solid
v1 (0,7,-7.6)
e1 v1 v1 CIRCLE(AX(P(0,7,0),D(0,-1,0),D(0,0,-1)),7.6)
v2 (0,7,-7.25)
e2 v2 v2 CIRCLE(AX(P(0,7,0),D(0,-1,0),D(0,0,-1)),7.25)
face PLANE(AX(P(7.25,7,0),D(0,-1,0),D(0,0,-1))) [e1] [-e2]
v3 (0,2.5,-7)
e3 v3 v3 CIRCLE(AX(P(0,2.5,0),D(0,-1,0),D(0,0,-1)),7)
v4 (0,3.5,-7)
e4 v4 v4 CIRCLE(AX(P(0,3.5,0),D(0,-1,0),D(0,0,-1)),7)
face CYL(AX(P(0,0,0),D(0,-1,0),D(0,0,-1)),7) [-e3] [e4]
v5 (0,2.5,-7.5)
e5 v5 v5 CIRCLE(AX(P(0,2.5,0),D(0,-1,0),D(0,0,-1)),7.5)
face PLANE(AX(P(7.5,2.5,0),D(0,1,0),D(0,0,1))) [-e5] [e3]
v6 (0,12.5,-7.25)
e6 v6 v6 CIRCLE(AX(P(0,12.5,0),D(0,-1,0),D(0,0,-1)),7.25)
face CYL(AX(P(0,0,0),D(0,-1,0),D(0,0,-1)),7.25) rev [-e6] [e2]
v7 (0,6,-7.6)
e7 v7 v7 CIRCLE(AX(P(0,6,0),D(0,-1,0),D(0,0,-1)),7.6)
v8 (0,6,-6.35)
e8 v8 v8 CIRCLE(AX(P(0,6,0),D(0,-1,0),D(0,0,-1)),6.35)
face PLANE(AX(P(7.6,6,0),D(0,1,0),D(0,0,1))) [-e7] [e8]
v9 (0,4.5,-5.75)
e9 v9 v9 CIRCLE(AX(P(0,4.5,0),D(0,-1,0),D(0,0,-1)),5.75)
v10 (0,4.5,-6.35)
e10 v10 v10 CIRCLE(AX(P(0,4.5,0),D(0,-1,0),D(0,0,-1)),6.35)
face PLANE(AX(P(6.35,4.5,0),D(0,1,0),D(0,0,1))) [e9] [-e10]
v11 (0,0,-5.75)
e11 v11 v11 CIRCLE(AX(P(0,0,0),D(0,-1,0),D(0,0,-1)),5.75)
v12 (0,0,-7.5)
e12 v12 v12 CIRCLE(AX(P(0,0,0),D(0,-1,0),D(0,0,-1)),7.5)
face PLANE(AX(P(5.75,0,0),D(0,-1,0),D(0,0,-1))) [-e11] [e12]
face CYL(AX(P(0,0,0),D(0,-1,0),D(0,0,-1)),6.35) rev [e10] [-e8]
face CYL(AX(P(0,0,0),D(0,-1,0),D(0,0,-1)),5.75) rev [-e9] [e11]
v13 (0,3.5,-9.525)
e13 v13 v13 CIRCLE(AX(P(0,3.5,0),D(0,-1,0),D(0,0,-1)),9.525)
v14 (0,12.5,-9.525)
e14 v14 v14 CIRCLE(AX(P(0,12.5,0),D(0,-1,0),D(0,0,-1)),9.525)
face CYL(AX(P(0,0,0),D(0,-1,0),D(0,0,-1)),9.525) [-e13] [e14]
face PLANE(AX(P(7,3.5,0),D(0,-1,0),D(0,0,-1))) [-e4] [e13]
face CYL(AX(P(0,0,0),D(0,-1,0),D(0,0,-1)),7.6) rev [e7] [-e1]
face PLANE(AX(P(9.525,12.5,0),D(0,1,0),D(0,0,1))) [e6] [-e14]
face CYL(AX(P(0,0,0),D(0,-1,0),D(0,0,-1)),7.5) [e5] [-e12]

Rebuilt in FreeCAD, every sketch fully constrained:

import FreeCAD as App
import Part
import Sketcher

V = App.Vector
Q = App.Units.Quantity

doc = App.newDocument("Part")
body = doc.addObject("PartDesign::Body", "Body")

sketch1 = body.newObject("Sketcher::SketchObject", "Sketch")
sketch1.AttachmentSupport = (doc.getObject("XY_Plane"), [""])
sketch1.MapMode = "FlatFace"
sketch1.addGeometry([
    Part.LineSegment(V(5.75, 0, 0), V(7.5, 0, 0)),
    Part.LineSegment(V(7.5, 0, 0), V(7.5, 2.5, 0)),
    Part.LineSegment(V(7.5, 2.5, 0), V(7, 2.5, 0)),
    Part.LineSegment(V(7, 2.5, 0), V(7, 3.5, 0)),
    Part.LineSegment(V(7, 3.5, 0), V(9.53, 3.5, 0)),
    Part.LineSegment(V(9.53, 3.5, 0), V(9.53, 12.5, 0)),
    Part.LineSegment(V(9.53, 12.5, 0), V(7.25, 12.5, 0)),
    Part.LineSegment(V(7.25, 12.5, 0), V(7.25, 7, 0)),
    Part.LineSegment(V(7.25, 7, 0), V(7.6, 7, 0)),
    Part.LineSegment(V(7.6, 7, 0), V(7.6, 6, 0)),
    Part.LineSegment(V(7.6, 6, 0), V(6.35, 6, 0)),
    Part.LineSegment(V(6.35, 6, 0), V(6.35, 4.5, 0)),
    Part.LineSegment(V(6.35, 4.5, 0), V(5.75, 4.5, 0)),
    Part.LineSegment(V(5.75, 4.5, 0), V(5.75, 0, 0)),
], False)
sketch1.addConstraint([
    Sketcher.Constraint("Coincident", 0, 2, 1, 1),
    Sketcher.Constraint("Coincident", 1, 2, 2, 1),
    Sketcher.Constraint("Coincident", 2, 2, 3, 1),
    Sketcher.Constraint("Coincident", 3, 2, 4, 1),
    Sketcher.Constraint("Coincident", 4, 2, 5, 1),
    Sketcher.Constraint("Coincident", 5, 2, 6, 1),
    Sketcher.Constraint("Coincident", 6, 2, 7, 1),
    Sketcher.Constraint("Coincident", 7, 2, 8, 1),
    Sketcher.Constraint("Coincident", 8, 2, 9, 1),
    Sketcher.Constraint("Coincident", 9, 2, 10, 1),
    Sketcher.Constraint("Coincident", 10, 2, 11, 1),
    Sketcher.Constraint("Coincident", 11, 2, 12, 1),
    Sketcher.Constraint("Coincident", 12, 2, 13, 1),
    Sketcher.Constraint("Coincident", 13, 2, 0, 1),
    Sketcher.Constraint("Horizontal", 0),
    Sketcher.Constraint("Vertical", 1),
    Sketcher.Constraint("Horizontal", 2),
    Sketcher.Constraint("Vertical", 3),
    Sketcher.Constraint("Horizontal", 4),
    Sketcher.Constraint("Vertical", 5),
    Sketcher.Constraint("Horizontal", 6),
    Sketcher.Constraint("Vertical", 7),
    Sketcher.Constraint("Horizontal", 8),
    Sketcher.Constraint("Vertical", 9),
    Sketcher.Constraint("Horizontal", 10),
    Sketcher.Constraint("Vertical", 11),
    Sketcher.Constraint("Horizontal", 12),
    Sketcher.Constraint("Vertical", 13),
    Sketcher.Constraint("PointOnObject", 0, 2, -1),
    Sketcher.Constraint("Equal", 3, 9),
    Sketcher.Constraint("DistanceY", 3, 1, 3, 2, Q("1 mm")),
    Sketcher.Constraint("DistanceY", 5, 1, 5, 2, Q("9 mm")),
    Sketcher.Constraint("DistanceX", 2, 2, 2, 1, Q("0.5 mm")),
    Sketcher.Constraint("DistanceX", 12, 2, 12, 1, Q("0.6 mm")),
    Sketcher.Constraint("DistanceY", 1, 1, 1, 2, Q("2.5 mm")),
    Sketcher.Constraint("DistanceY", 7, 2, 7, 1, Q("5.5 mm")),
    Sketcher.Constraint("DistanceY", 11, 2, 11, 1, Q("1.5 mm")),
    Sketcher.Constraint("DistanceX", -1, 1, 2, 2, Q("7 mm")),
    Sketcher.Constraint("DistanceX", 0, 1, 0, 2, Q("1.75 mm")),
    Sketcher.Constraint("DistanceX", 8, 1, 8, 2, Q("0.35 mm")),
    Sketcher.Constraint("DistanceX", 10, 2, 10, 1, Q("1.25 mm")),
    Sketcher.Constraint("DistanceX", 4, 1, 4, 2, Q("2.525 mm")),
])
revolution = body.newObject("PartDesign::Revolution", "Revolution")
revolution.Profile = sketch1
revolution.ReferenceAxis = (sketch1, ["V_Axis"])
revolution.Angle = 360

doc.recompute()
